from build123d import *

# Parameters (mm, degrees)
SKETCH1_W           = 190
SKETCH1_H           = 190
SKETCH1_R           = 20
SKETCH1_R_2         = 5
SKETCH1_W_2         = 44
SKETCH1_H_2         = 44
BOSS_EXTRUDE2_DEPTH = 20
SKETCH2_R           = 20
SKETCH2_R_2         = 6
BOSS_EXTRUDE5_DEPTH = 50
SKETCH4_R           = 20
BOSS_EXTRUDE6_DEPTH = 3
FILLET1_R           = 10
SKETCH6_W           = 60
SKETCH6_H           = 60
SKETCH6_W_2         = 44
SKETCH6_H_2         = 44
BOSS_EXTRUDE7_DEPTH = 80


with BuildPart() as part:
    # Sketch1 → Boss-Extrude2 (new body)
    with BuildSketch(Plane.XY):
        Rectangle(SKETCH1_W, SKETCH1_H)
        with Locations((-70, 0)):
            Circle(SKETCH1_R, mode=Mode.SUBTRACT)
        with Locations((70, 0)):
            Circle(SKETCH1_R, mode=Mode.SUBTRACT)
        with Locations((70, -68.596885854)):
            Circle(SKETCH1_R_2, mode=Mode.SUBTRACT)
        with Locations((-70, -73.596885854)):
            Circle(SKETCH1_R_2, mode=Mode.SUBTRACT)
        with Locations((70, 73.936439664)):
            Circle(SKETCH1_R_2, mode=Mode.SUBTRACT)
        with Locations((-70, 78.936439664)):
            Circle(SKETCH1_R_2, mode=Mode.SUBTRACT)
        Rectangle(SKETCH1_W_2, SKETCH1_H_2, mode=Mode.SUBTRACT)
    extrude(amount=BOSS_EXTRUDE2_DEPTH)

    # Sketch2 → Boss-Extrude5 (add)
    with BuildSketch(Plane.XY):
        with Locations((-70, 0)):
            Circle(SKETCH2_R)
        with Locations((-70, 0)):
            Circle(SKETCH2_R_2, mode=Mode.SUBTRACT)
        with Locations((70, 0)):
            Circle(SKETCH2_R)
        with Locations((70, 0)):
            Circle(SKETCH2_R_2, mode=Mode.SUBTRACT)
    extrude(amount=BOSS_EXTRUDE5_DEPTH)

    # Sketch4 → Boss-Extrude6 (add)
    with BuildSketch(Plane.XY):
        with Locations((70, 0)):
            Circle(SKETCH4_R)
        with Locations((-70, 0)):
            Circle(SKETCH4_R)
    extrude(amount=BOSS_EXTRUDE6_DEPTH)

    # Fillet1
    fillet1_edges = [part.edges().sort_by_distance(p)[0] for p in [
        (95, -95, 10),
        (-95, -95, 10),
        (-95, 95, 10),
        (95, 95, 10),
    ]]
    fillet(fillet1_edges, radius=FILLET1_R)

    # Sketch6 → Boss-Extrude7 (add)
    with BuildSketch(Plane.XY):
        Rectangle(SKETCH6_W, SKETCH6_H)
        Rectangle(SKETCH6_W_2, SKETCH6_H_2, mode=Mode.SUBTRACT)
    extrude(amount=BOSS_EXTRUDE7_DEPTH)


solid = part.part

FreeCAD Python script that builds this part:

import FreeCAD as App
import Part
import Sketcher

V = App.Vector


def edges_at(feature, points):
    """Names of the edges that pass closest to the given points."""
    edges = feature.Shape.Edges
    near = lambda p: min(range(len(edges)), key=lambda i: edges[i].distToShape(Part.Vertex(*p))[0])
    return sorted({f"Edge{near(p) + 1}" for p in points})

doc = App.newDocument("Part")
body = doc.addObject("PartDesign::Body", "Body")

# Sketch on XY plane
sketch1 = doc.addObject("Sketcher::SketchObject", "Sketch")
body.addObject(sketch1)
sketch1.AttachmentSupport = (doc.XY_Plane, [""])
sketch1.MapMode = "FlatFace"
sketch1.addGeometry(Part.LineSegment(V(-95, 95, 0), V(-95, -95, 0)), False)
sketch1.addGeometry(Part.LineSegment(V(-95, -95, 0), V(95, -95, 0)), False)
sketch1.addGeometry(Part.LineSegment(V(95, -95, 0), V(95, 95, 0)), False)
sketch1.addGeometry(Part.LineSegment(V(95, 95, 0), V(-95, 95, 0)), False)
sketch1.addGeometry(Part.Circle(V(-70, -74, 0), V(0, 0, 1), 5), False)
sketch1.addGeometry(Part.Circle(V(-70, 0, 0), V(0, 0, 1), 20), False)
sketch1.addGeometry(Part.Circle(V(70, -69, 0), V(0, 0, 1), 5), False)
sketch1.addGeometry(Part.LineSegment(V(22, -22, 0), V(-22, -22, 0)), False)
sketch1.addGeometry(Part.LineSegment(V(-22, -22, 0), V(-22, 22, 0)), False)
sketch1.addGeometry(Part.LineSegment(V(-22, 22, 0), V(22, 22, 0)), False)
sketch1.addGeometry(Part.LineSegment(V(22, 22, 0), V(22, -22, 0)), False)
sketch1.addGeometry(Part.Circle(V(70, 0, 0), V(0, 0, 1), 20), False)
sketch1.addGeometry(Part.Circle(V(-70, 79, 0), V(0, 0, 1), 5), False)
sketch1.addGeometry(Part.Circle(V(70, 74, 0), V(0, 0, 1), 5), False)
sketch1.addConstraint(Sketcher.Constraint("Coincident", 0, 2, 1, 1))
sketch1.addConstraint(Sketcher.Constraint("Coincident", 1, 2, 2, 1))
sketch1.addConstraint(Sketcher.Constraint("Coincident", 2, 2, 3, 1))
sketch1.addConstraint(Sketcher.Constraint("Coincident", 3, 2, 0, 1))
sketch1.addConstraint(Sketcher.Constraint("Coincident", 7, 2, 8, 1))
sketch1.addConstraint(Sketcher.Constraint("Coincident", 8, 2, 9, 1))
sketch1.addConstraint(Sketcher.Constraint("Coincident", 9, 2, 10, 1))
sketch1.addConstraint(Sketcher.Constraint("Coincident", 10, 2, 7, 1))
sketch1.addConstraint(Sketcher.Constraint("Vertical", 0))
sketch1.addConstraint(Sketcher.Constraint("Horizontal", 1))
sketch1.addConstraint(Sketcher.Constraint("Vertical", 2))
sketch1.addConstraint(Sketcher.Constraint("Horizontal", 3))
sketch1.addConstraint(Sketcher.Constraint("Horizontal", 7))
sketch1.addConstraint(Sketcher.Constraint("Vertical", 8))
sketch1.addConstraint(Sketcher.Constraint("Horizontal", 9))
sketch1.addConstraint(Sketcher.Constraint("Vertical", 10))
sketch1.addConstraint(Sketcher.Constraint("Equal", 4, 6))
sketch1.addConstraint(Sketcher.Constraint("Equal", 5, 11))
sketch1.addConstraint(Sketcher.Constraint("Equal", 6, 12))
sketch1.addConstraint(Sketcher.Constraint("Equal", 12, 13))
sketch1.addConstraint(Sketcher.Constraint("Symmetric", 5, 3, 11, 3, -1, 1))
sketch1.addConstraint(Sketcher.Constraint("Symmetric", 0, 2, 2, 2, -1, 1))
sketch1.addConstraint(Sketcher.Constraint("Symmetric", 7, 2, 9, 2, -1, 1))
sketch1.addConstraint(Sketcher.Constraint("PointOnObject", 5, 3, -1))
sketch1.addConstraint(Sketcher.Constraint("Vertical", 4, 3, 5, 3))
sketch1.addConstraint(Sketcher.Constraint("Vertical", 6, 3, 11, 3))
sketch1.addConstraint(Sketcher.Constraint("Vertical", 5, 3, 12, 3))
sketch1.addConstraint(Sketcher.Constraint("Vertical", 11, 3, 13, 3))
sketch1.addConstraint(Sketcher.Constraint("Equal", 3, 0))
sketch1.addConstraint(Sketcher.Constraint("Equal", 9, 8))
sketch1.addConstraint(Sketcher.Constraint("Diameter", 4, 10.0))
sketch1.addConstraint(Sketcher.Constraint("Diameter", 5, 40.0))
sketch1.addConstraint(Sketcher.Constraint("DistanceX", 1, 1, 1, 2, 190.0))
sketch1.addConstraint(Sketcher.Constraint("DistanceX", 7, 2, 7, 1, 44.0))
sketch1.addConstraint(Sketcher.Constraint("DistanceX", 4, 3, -1, 1, 70.0))
sketch1.addConstraint(Sketcher.Constraint("DistanceY", 4, 3, 6, 3, 5.0))
sketch1.addConstraint(Sketcher.Constraint("DistanceY", 13, 3, 12, 3, 5.0))
sketch1.addConstraint(Sketcher.Constraint("DistanceY", -1, 1, 12, 3, 78.93644))
sketch1.addConstraint(Sketcher.Constraint("DistanceY", 4, 3, -1, 1, 73.596886))
pad1 = doc.addObject("PartDesign::Pad", "Pad")
body.addObject(pad1)
pad1.Profile = sketch1
pad1.Length = 20

# Sketch on XY plane
sketch2 = doc.addObject("Sketcher::SketchObject", "Sketch001")
body.addObject(sketch2)
sketch2.AttachmentSupport = (doc.XY_Plane, [""])
sketch2.MapMode = "FlatFace"
sketch2.addGeometry(Part.Circle(V(-70, 0, 0), V(0, 0, 1), 20), False)
sketch2.addGeometry(Part.Circle(V(-70, 0, 0), V(0, 0, 1), 6), False)
sketch2.addGeometry(Part.Circle(V(70, 0, 0), V(0, 0, 1), 20), False)
sketch2.addGeometry(Part.Circle(V(70, 0, 0), V(0, 0, 1), 6), False)
sketch2.addConstraint(Sketcher.Constraint("Coincident", 1, 3, 0, 3))
sketch2.addConstraint(Sketcher.Constraint("Coincident", 3, 3, 2, 3))
sketch2.addConstraint(Sketcher.Constraint("Equal", 0, 2))
sketch2.addConstraint(Sketcher.Constraint("Equal", 1, 3))
sketch2.addConstraint(Sketcher.Constraint("Symmetric", 0, 3, 2, 3, -1, 1))
sketch2.addConstraint(Sketcher.Constraint("PointOnObject", 0, 3, -1))
sketch2.addConstraint(Sketcher.Constraint("Diameter", 0, 40.0))
sketch2.addConstraint(Sketcher.Constraint("Diameter", 1, 12.0))
sketch2.addConstraint(Sketcher.Constraint("DistanceX", 0, 3, -1, 1, 70.0))
pad2 = doc.addObject("PartDesign::Pad", "Pad001")
body.addObject(pad2)
pad2.Profile = sketch2
pad2.Length = 50

# Sketch on XY plane
sketch3 = doc.addObject("Sketcher::SketchObject", "Sketch002")
body.addObject(sketch3)
sketch3.AttachmentSupport = (doc.XY_Plane, [""])
sketch3.MapMode = "FlatFace"
sketch3.addGeometry(Part.Circle(V(70, 0, 0), V(0, 0, 1), 20), False)
sketch3.addGeometry(Part.Circle(V(-70, 0, 0), V(0, 0, 1), 20), False)
sketch3.addConstraint(Sketcher.Constraint("Equal", 0, 1))
sketch3.addConstraint(Sketcher.Constraint("Symmetric", 0, 3, 1, 3, -1, 1))
sketch3.addConstraint(Sketcher.Constraint("PointOnObject", 0, 3, -1))
sketch3.addConstraint(Sketcher.Constraint("Diameter", 0, 40.0))
sketch3.addConstraint(Sketcher.Constraint("DistanceX", -1, 1, 0, 3, 70.0))
pad3 = doc.addObject("PartDesign::Pad", "Pad002")
body.addObject(pad3)
pad3.Profile = sketch3
pad3.Length = 3
doc.recompute()

fillet = doc.addObject("PartDesign::Fillet", "Fillet")
body.addObject(fillet)
fillet.Base = (pad3, edges_at(pad3, [
    (95, -95, 10),
    (-95, -95, 10),
    (-95, 95, 10),
    (95, 95, 10),
]))
fillet.Radius = 10

# Sketch on XY plane
sketch4 = doc.addObject("Sketcher::SketchObject", "Sketch003")
body.addObject(sketch4)
sketch4.AttachmentSupport = (doc.XY_Plane, [""])
sketch4.MapMode = "FlatFace"
sketch4.addGeometry(Part.LineSegment(V(-30, 30, 0), V(-30, -30, 0)), False)
sketch4.addGeometry(Part.LineSegment(V(-30, -30, 0), V(30, -30, 0)), False)
sketch4.addGeometry(Part.LineSegment(V(30, -30, 0), V(30, 30, 0)), False)
sketch4.addGeometry(Part.LineSegment(V(30, 30, 0), V(-30, 30, 0)), False)
sketch4.addGeometry(Part.LineSegment(V(22, -22, 0), V(-22, -22, 0)), False)
sketch4.addGeometry(Part.LineSegment(V(-22, -22, 0), V(-22, 22, 0)), False)
sketch4.addGeometry(Part.LineSegment(V(-22, 22, 0), V(22, 22, 0)), False)
sketch4.addGeometry(Part.LineSegment(V(22, 22, 0), V(22, -22, 0)), False)
sketch4.addConstraint(Sketcher.Constraint("Coincident", 0, 2, 1, 1))
sketch4.addConstraint(Sketcher.Constraint("Coincident", 1, 2, 2, 1))
sketch4.addConstraint(Sketcher.Constraint("Coincident", 2, 2, 3, 1))
sketch4.addConstraint(Sketcher.Constraint("Coincident", 3, 2, 0, 1))
sketch4.addConstraint(Sketcher.Constraint("Coincident", 4, 2, 5, 1))
sketch4.addConstraint(Sketcher.Constraint("Coincident", 5, 2, 6, 1))
sketch4.addConstraint(Sketcher.Constraint("Coincident", 6, 2, 7, 1))
sketch4.addConstraint(Sketcher.Constraint("Coincident", 7, 2, 4, 1))
sketch4.addConstraint(Sketcher.Constraint("Vertical", 0))
sketch4.addConstraint(Sketcher.Constraint("Horizontal", 1))
sketch4.addConstraint(Sketcher.Constraint("Vertical", 2))
sketch4.addConstraint(Sketcher.Constraint("Horizontal", 3))
sketch4.addConstraint(Sketcher.Constraint("Horizontal", 4))
sketch4.addConstraint(Sketcher.Constraint("Vertical", 5))
sketch4.addConstraint(Sketcher.Constraint("Horizontal", 6))
sketch4.addConstraint(Sketcher.Constraint("Vertical", 7))
sketch4.addConstraint(Sketcher.Constraint("Symmetric", 0, 2, 2, 2, -1, 1))
sketch4.addConstraint(Sketcher.Constraint("Symmetric", 4, 2, 6, 2, -1, 1))
sketch4.addConstraint(Sketcher.Constraint("Equal", 3, 0))
sketch4.addConstraint(Sketcher.Constraint("Equal", 6, 5))
sketch4.addConstraint(Sketcher.Constraint("DistanceX", 1, 1, 1, 2, 60.0))
sketch4.addConstraint(Sketcher.Constraint("DistanceX", 4, 2, 4, 1, 44.0))
pad4 = doc.addObject("PartDesign::Pad", "Pad003")
body.addObject(pad4)
pad4.Profile = sketch4
pad4.Length = 80

doc.recompute()
